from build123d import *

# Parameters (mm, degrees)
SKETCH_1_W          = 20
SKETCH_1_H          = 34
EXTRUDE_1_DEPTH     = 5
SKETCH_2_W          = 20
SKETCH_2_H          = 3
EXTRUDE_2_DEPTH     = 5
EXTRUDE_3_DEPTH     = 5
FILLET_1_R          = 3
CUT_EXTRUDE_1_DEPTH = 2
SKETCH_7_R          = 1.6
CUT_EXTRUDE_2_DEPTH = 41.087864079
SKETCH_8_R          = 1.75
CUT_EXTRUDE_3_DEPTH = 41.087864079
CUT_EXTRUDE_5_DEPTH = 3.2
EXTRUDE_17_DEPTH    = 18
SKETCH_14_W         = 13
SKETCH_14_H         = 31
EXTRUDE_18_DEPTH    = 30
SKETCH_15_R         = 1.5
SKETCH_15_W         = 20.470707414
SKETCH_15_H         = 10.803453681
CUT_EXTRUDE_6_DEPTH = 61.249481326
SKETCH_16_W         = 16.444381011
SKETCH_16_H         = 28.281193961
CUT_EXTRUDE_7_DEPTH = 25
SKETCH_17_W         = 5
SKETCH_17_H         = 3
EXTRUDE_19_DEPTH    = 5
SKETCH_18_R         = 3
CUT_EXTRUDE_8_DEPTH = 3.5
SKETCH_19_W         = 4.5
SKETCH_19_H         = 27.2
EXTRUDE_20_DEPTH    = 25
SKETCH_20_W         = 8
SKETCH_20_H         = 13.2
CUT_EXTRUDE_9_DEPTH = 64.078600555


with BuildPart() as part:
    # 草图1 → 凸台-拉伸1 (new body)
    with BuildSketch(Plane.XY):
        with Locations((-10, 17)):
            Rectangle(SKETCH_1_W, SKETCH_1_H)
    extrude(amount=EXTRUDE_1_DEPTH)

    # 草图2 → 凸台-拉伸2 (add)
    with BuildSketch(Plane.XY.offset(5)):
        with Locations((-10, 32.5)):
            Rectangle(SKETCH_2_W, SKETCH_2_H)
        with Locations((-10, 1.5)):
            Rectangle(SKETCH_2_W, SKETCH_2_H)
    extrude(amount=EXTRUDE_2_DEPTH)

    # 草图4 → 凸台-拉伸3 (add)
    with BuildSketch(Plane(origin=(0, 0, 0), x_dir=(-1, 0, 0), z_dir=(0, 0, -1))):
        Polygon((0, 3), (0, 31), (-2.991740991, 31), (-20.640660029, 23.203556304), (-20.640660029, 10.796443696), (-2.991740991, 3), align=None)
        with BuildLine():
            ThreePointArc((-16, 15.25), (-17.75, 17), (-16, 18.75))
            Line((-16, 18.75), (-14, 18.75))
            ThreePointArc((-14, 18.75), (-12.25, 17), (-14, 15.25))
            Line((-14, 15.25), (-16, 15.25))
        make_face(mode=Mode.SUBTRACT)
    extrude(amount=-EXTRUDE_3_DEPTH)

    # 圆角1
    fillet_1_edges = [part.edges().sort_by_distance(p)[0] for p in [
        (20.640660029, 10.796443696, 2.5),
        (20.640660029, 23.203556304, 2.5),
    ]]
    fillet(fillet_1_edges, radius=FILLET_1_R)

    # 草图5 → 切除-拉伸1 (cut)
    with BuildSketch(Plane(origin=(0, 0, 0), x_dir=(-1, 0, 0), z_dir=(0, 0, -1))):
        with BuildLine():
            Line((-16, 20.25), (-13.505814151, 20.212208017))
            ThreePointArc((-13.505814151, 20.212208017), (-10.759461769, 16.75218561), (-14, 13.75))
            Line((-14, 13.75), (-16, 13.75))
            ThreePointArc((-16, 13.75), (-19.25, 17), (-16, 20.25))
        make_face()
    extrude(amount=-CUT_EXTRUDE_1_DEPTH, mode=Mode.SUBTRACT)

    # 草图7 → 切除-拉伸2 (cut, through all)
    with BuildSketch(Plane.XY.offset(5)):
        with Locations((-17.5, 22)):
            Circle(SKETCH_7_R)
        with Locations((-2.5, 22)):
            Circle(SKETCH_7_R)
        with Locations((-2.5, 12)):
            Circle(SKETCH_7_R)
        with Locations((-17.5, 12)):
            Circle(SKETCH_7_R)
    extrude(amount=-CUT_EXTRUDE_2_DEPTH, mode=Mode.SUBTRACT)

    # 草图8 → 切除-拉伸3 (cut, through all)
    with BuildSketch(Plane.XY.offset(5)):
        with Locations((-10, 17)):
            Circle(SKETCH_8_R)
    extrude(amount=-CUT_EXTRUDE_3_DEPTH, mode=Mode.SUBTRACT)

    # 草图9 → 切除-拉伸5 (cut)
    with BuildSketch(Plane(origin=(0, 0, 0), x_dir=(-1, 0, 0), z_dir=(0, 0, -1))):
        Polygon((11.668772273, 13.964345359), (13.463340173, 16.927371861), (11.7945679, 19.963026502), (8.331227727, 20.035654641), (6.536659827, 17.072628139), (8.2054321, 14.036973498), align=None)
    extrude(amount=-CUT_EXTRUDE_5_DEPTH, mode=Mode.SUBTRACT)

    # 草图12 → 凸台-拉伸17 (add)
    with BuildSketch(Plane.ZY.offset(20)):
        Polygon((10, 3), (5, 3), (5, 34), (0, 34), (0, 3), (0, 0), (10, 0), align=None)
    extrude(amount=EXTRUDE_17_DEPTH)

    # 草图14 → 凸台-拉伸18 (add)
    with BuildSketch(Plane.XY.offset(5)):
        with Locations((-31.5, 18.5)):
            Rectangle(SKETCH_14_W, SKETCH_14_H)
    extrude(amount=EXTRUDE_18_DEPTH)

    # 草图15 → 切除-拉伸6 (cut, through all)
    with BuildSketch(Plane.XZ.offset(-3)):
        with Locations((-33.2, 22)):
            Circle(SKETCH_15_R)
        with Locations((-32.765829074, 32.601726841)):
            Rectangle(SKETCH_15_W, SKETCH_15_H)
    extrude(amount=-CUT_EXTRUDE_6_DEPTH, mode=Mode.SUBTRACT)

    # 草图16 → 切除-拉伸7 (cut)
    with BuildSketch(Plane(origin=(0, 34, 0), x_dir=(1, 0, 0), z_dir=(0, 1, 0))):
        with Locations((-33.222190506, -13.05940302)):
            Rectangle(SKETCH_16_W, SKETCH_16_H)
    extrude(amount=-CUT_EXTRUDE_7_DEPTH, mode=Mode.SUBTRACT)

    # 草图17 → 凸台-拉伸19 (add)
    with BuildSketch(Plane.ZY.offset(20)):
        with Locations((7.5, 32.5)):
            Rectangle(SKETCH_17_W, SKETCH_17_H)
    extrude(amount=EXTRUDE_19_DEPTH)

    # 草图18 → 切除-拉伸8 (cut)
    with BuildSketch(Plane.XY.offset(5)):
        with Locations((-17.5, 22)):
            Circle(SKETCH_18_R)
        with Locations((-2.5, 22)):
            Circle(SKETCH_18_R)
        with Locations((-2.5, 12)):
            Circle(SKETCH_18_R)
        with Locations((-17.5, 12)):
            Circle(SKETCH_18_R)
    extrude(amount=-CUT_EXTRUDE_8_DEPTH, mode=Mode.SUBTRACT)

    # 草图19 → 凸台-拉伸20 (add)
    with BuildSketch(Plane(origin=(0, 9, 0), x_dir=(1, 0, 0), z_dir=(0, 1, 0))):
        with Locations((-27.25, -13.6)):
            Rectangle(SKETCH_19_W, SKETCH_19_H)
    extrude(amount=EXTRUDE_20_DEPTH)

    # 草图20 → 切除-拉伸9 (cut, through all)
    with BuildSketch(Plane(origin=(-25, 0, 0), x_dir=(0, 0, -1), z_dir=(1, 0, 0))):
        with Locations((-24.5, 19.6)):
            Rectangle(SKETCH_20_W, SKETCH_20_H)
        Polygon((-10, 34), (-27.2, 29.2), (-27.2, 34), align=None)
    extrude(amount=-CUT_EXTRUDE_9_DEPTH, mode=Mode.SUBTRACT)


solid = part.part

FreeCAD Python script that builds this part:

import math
import FreeCAD as App
import Part
import Sketcher

V = App.Vector


def edges_at(feature, points):
    """Names of the edges that pass closest to the given points."""
    edges = feature.Shape.Edges
    near = lambda p: min(range(len(edges)), key=lambda i: edges[i].distToShape(Part.Vertex(*p))[0])
    return sorted({f"Edge{near(p) + 1}" for p in points})


def add_polygon(sketch, points):
    """Adds a closed chain of lines whose ends are joined by coincident constraints."""
    first, n = sketch.GeometryCount, len(points)
    for a, b in zip(points, points[1:] + points[:1]):
        sketch.addGeometry(Part.LineSegment(App.Vector(*a, 0), App.Vector(*b, 0)), False)
    for i in range(n):
        sketch.addConstraint(Sketcher.Constraint("Coincident", first + i, 2, first + (i + 1) % n, 1))

doc = App.newDocument("Part")
params = doc.addObject("Spreadsheet::Sheet", "Params")
for row, (alias, value) in enumerate([
    ("sketch1_width", "20 mm"),
    ("sketch1_height", "34 mm"),
    ("pad1_length", "5 mm"),
    ("sketch2_width", "20 mm"),
    ("sketch2_height", "3 mm"),
    ("pad2_length", "5 mm"),
    ("sketch3_width", "2 mm"),
    ("sketch3_height", "28 mm"),
    ("sketch3_radius", "1.75 mm"),
    ("pad3_length", "5 mm"),
    ("fillet_radius", "3 mm"),
    ("sketch4_width", "2 mm"),
    ("sketch4_radius", "3.25 mm"),
    ("pocket1_length", "2 mm"),
    ("sketch5_diameter", "3.2 mm"),
    ("sketch6_diameter", "3.5 mm"),
    ("pocket4_length", "3.2 mm"),
    ("sketch8_width", "31 mm"),
    ("sketch8_width2", "34 mm"),
    ("sketch8_height", "5 mm"),
    ("pad4_length", "18 mm"),
    ("sketch9_width", "13 mm"),
    ("sketch9_height", "31 mm"),
    ("pad5_length", "30 mm"),
    ("sketch10_diameter", "3 mm"),
    ("pocket6_length", "25 mm"),
    ("sketch12_width", "3 mm"),
    ("sketch12_height", "5 mm"),
    ("pad6_length", "5 mm"),
    ("sketch13_diameter", "6 mm"),
    ("pocket7_length", "3.5 mm"),
    ("sketch14_width", "4.5 mm"),
    ("sketch14_height", "27.2 mm"),
    ("pad7_length", "25 mm"),
    ("sketch15_height", "8 mm"),
    ("sketch15_width", "13.2 mm"),
    ("sketch15_width2", "4.8 mm"),
    ("sketch15_height2", "17.2 mm"),
], start=1):
    params.set(f"A{row}", alias)
    params.set(f"B{row}", "=" + value)
    params.setAlias(f"B{row}", alias)

body = doc.addObject("PartDesign::Body", "Body")

# Sketch on XY plane
sketch1 = body.newObject("Sketcher::SketchObject", "Sketch")
sketch1.AttachmentSupport = (doc.getObject("XY_Plane"), [""])
sketch1.MapMode = "FlatFace"
add_polygon(sketch1, [(-20, 34), (-20, 0), (0, 0), (0, 34)])  # lines 0-3
sketch1.addConstraint(Sketcher.Constraint("Vertical", 0))
sketch1.addConstraint(Sketcher.Constraint("Horizontal", 1))
sketch1.addConstraint(Sketcher.Constraint("Vertical", 2))
sketch1.addConstraint(Sketcher.Constraint("Horizontal", 3))
sketch1.addConstraint(Sketcher.Constraint("Coincident", 1, 2, -1, 1))
sketch1.addConstraint(Sketcher.Constraint("DistanceX", 1, 1, 1, 2, 20.0))
sketch1.addConstraint(Sketcher.Constraint("DistanceY", 0, 2, 0, 1, 34.0))
sketch1.setExpression("Constraints[9]", "Params.sketch1_width")
sketch1.setExpression("Constraints[10]", "Params.sketch1_height")
pad1 = body.newObject("PartDesign::Pad", "Pad")
pad1.Profile = sketch1
pad1.setExpression("Length", "Params.pad1_length")

# Sketch on XY plane
sketch2 = body.newObject("Sketcher::SketchObject", "Sketch001")
sketch2.AttachmentSupport = (doc.getObject("XY_Plane"), [""])
sketch2.MapMode = "FlatFace"
sketch2.AttachmentOffset = App.Placement(V(0, 0, 5), App.Rotation())
add_polygon(sketch2, [(-20, 34), (-20, 31), (0, 31), (0, 34)])  # lines 0-3
add_polygon(sketch2, [(-20, 3), (-20, 0), (0, 0), (0, 3)])  # lines 4-7
sketch2.addConstraint(Sketcher.Constraint("Vertical", 0))
sketch2.addConstraint(Sketcher.Constraint("Horizontal", 1))
sketch2.addConstraint(Sketcher.Constraint("Vertical", 2))
sketch2.addConstraint(Sketcher.Constraint("Horizontal", 3))
sketch2.addConstraint(Sketcher.Constraint("Vertical", 4))
sketch2.addConstraint(Sketcher.Constraint("Horizontal", 5))
sketch2.addConstraint(Sketcher.Constraint("Vertical", 6))
sketch2.addConstraint(Sketcher.Constraint("Horizontal", 7))
sketch2.addConstraint(Sketcher.Constraint("Coincident", 5, 2, -1, 1))
sketch2.addConstraint(Sketcher.Constraint("PointOnObject", 1, 2, -2))
sketch2.addConstraint(Sketcher.Constraint("Vertical", 3, 2, 4, 2))
sketch2.addConstraint(Sketcher.Constraint("Equal", 2, 4))
sketch2.addConstraint(Sketcher.Constraint("DistanceX", 1, 1, 1, 2, 20.0))
sketch2.addConstraint(Sketcher.Constraint("DistanceY", 0, 2, 0, 1, 3.0))
sketch2.addConstraint(Sketcher.Constraint("DistanceY", -1, 1, 0, 2, 31.0))
sketch2.setExpression("Constraints[20]", "Params.sketch2_width")
sketch2.setExpression("Constraints[21]", "Params.sketch2_height")
pad2 = body.newObject("PartDesign::Pad", "Pad001")
pad2.Profile = sketch2
pad2.setExpression("Length", "Params.pad2_length")

# Sketch on XY plane
sketch3 = body.newObject("Sketcher::SketchObject", "Sketch002")
sketch3.AttachmentSupport = (doc.getObject("XY_Plane"), [""])
sketch3.MapMode = "FlatFace"
add_polygon(sketch3, [(0, 3), (0, 31), (3, 31), (20.6, 23.2), (20.6, 10.8), (3, 3)])  # lines 0-5
sketch3.addGeometry(Part.LineSegment(V(14, 15.2, 0), V(16, 15.2, 0)), False)  # 6
sketch3.addGeometry(Part.ArcOfCircle(Part.Circle(V(16, 17, 0), V(0, 0, 1), 1.8), math.radians(-90), math.radians(90)), False)  # 7
sketch3.addGeometry(Part.LineSegment(V(16, 18.8, 0), V(14, 18.8, 0)), False)  # 8
sketch3.addGeometry(Part.ArcOfCircle(Part.Circle(V(14, 17, 0), V(0, 0, 1), 1.8), math.radians(90), math.radians(270)), False)  # 9
sketch3.addConstraint(Sketcher.Constraint("Tangent", 6, 2, 7, 1))
sketch3.addConstraint(Sketcher.Constraint("Tangent", 7, 2, 8, 1))
sketch3.addConstraint(Sketcher.Constraint("Tangent", 8, 2, 9, 1))
sketch3.addConstraint(Sketcher.Constraint("Tangent", 9, 2, 6, 1))
sketch3.addConstraint(Sketcher.Constraint("Vertical", 0))
sketch3.addConstraint(Sketcher.Constraint("Horizontal", 1))
sketch3.addConstraint(Sketcher.Constraint("Vertical", 3))
sketch3.addConstraint(Sketcher.Constraint("Horizontal", 5))
sketch3.addConstraint(Sketcher.Constraint("Horizontal", 6))
sketch3.addConstraint(Sketcher.Constraint("Horizontal", 8))
sketch3.addConstraint(Sketcher.Constraint("PointOnObject", 0, 2, -2))
sketch3.addConstraint(Sketcher.Constraint("Vertical", 1, 2, 4, 2))
sketch3.addConstraint(Sketcher.Constraint("Equal", 2, 4))
sketch3.addConstraint(Sketcher.Constraint("DistanceX", 6, 1, 6, 2, 2.0))
sketch3.addConstraint(Sketcher.Constraint("DistanceY", 0, 1, 0, 2, 28.0))
sketch3.addConstraint(Sketcher.Constraint("Radius", 7, 1.75))
sketch3.addConstraint(Sketcher.Constraint("DistanceX", -1, 1, 7, 3, 16.0))
sketch3.addConstraint(Sketcher.Constraint("DistanceY", -1, 1, 7, 3, 17.0))
sketch3.addConstraint(Sketcher.Constraint("DistanceY", -1, 1, 0, 2, 31.0))
sketch3.addConstraint(Sketcher.Constraint("DistanceX", 1, 1, 1, 2, 2.991741))
sketch3.addConstraint(Sketcher.Constraint("Distance", 2, 19.294271))
sketch3.addConstraint(Sketcher.Constraint("DistanceY", 3, 2, 3, 1, 12.407113))
sketch3.setExpression("Constraints[19]", "Params.sketch3_width")
sketch3.setExpression("Constraints[20]", "Params.sketch3_height")
sketch3.setExpression("Constraints[21]", "Params.sketch3_radius")
pad3 = body.newObject("PartDesign::Pad", "Pad002")
pad3.Profile = sketch3
pad3.setExpression("Length", "Params.pad3_length")
doc.recompute()

fillet = body.newObject("PartDesign::Fillet", "Fillet")
fillet.Base = (pad3, edges_at(pad3, [(20.641, 10.796, 2.5), (20.641, 23.204, 2.5)]))
fillet.setExpression("Radius", "Params.fillet_radius")

# Sketch on XY plane
sketch4 = body.newObject("Sketcher::SketchObject", "Sketch003")
sketch4.AttachmentSupport = (doc.getObject("XY_Plane"), [""])
sketch4.MapMode = "FlatFace"
sketch4.addGeometry(Part.LineSegment(V(13.5, 20.2, 0), V(16, 20.2, 0)), False)
sketch4.addGeometry(Part.ArcOfCircle(Part.Circle(V(16, 17, 0), V(0, 0, 1), 3.2), math.radians(-90), math.radians(90)), False)
sketch4.addGeometry(Part.LineSegment(V(16, 13.8, 0), V(14, 13.8, 0)), False)
sketch4.addGeometry(Part.ArcOfCircle(Part.Circle(V(14, 17, 0), V(0, 0, 1), 3.2), math.radians(99), math.radians(270)), False)
sketch4.addConstraint(Sketcher.Constraint("Coincident", 0, 2, 1, 2))
sketch4.addConstraint(Sketcher.Constraint("Tangent", 1, 1, 2, 1))
sketch4.addConstraint(Sketcher.Constraint("Tangent", 2, 2, 3, 2))
sketch4.addConstraint(Sketcher.Constraint("Coincident", 3, 1, 0, 1))
sketch4.addConstraint(Sketcher.Constraint("Horizontal", 2))
sketch4.addConstraint(Sketcher.Constraint("Equal", 1, 3))
sketch4.addConstraint(Sketcher.Constraint("Vertical", 1, 3, 0, 2))
sketch4.addConstraint(Sketcher.Constraint("DistanceX", 2, 2, 2, 1, 2.0))
sketch4.addConstraint(Sketcher.Constraint("Radius", 1, 3.25))
sketch4.addConstraint(Sketcher.Constraint("DistanceX", -1, 1, 1, 3, 16.0))
sketch4.addConstraint(Sketcher.Constraint("DistanceY", -1, 1, 1, 3, 17.0))
sketch4.addConstraint(Sketcher.Constraint("DistanceY", -1, 1, 3, 1, 20.212208))
sketch4.setExpression("Constraints[7]", "Params.sketch4_width")
sketch4.setExpression("Constraints[8]", "Params.sketch4_radius")
pocket1 = body.newObject("PartDesign::Pocket", "Pocket")
pocket1.Profile = sketch4
pocket1.setExpression("Length", "Params.pocket1_length")
pocket1.Reversed = True

# Sketch on XY plane
sketch5 = body.newObject("Sketcher::SketchObject", "Sketch004")
sketch5.AttachmentSupport = (doc.getObject("XY_Plane"), [""])
sketch5.MapMode = "FlatFace"
sketch5.AttachmentOffset = App.Placement(V(0, 0, 5), App.Rotation())
sketch5.addGeometry(Part.Circle(V(-17.5, 22, 0), V(0, 0, 1), 1.6), False)
sketch5.addGeometry(Part.Circle(V(-2.5, 22, 0), V(0, 0, 1), 1.6), False)
sketch5.addGeometry(Part.Circle(V(-2.5, 12, 0), V(0, 0, 1), 1.6), False)
sketch5.addGeometry(Part.Circle(V(-17.5, 12, 0), V(0, 0, 1), 1.6), False)
sketch5.addConstraint(Sketcher.Constraint("Equal", 0, 1))
sketch5.addConstraint(Sketcher.Constraint("Equal", 1, 2))
sketch5.addConstraint(Sketcher.Constraint("Equal", 2, 3))
sketch5.addConstraint(Sketcher.Constraint("Horizontal", 0, 3, 1, 3))
sketch5.addConstraint(Sketcher.Constraint("Horizontal", 2, 3, 3, 3))
sketch5.addConstraint(Sketcher.Constraint("Vertical", 1, 3, 2, 3))
sketch5.addConstraint(Sketcher.Constraint("Vertical", 0, 3, 3, 3))
sketch5.addConstraint(Sketcher.Constraint("Diameter", 0, 3.2))
sketch5.addConstraint(Sketcher.Constraint("DistanceY", -1, 1, 0, 3, 22.0))
sketch5.addConstraint(Sketcher.Constraint("DistanceY", -1, 1, 2, 3, 12.0))
sketch5.addConstraint(Sketcher.Constraint("DistanceX", 0, 3, 1, 3, 15.0))
sketch5.addConstraint(Sketcher.Constraint("DistanceX", 0, 3, -1, 1, 17.5))
sketch5.setExpression("Constraints[7]", "Params.sketch5_diameter")
pocket2 = body.newObject("PartDesign::Pocket", "Pocket001")
pocket2.Profile = sketch5
pocket2.Type = "ThroughAll"

# Sketch on XY plane
sketch6 = body.newObject("Sketcher::SketchObject", "Sketch005")
sketch6.AttachmentSupport = (doc.getObject("XY_Plane"), [""])
sketch6.MapMode = "FlatFace"
sketch6.AttachmentOffset = App.Placement(V(0, 0, 5), App.Rotation())
sketch6.addGeometry(Part.Circle(V(-10, 17, 0), V(0, 0, 1), 1.8), False)
sketch6.addConstraint(Sketcher.Constraint("Diameter", 0, 3.5))
sketch6.addConstraint(Sketcher.Constraint("DistanceX", 0, 3, -1, 1, 10.0))
sketch6.addConstraint(Sketcher.Constraint("DistanceY", -1, 1, 0, 3, 17.0))
sketch6.setExpression("Constraints[0]", "Params.sketch6_diameter")
pocket3 = body.newObject("PartDesign::Pocket", "Pocket002")
pocket3.Profile = sketch6
pocket3.Type = "ThroughAll"

# Sketch on XY plane
sketch7 = body.newObject("Sketcher::SketchObject", "Sketch006")
sketch7.AttachmentSupport = (doc.getObject("XY_Plane"), [""])
sketch7.MapMode = "FlatFace"
add_polygon(sketch7, [(-11.7, 14), (-13.5, 16.9), (-11.8, 20), (-8.3, 20), (-6.5, 17.1), (-8.2, 14)])  # lines 0-5
sketch7.addConstraint(Sketcher.Constraint("Parallel", 0, 3))
sketch7.addConstraint(Sketcher.Constraint("Parallel", 1, 4))
sketch7.addConstraint(Sketcher.Constraint("Parallel", 2, 5))
sketch7.addConstraint(Sketcher.Constraint("Equal", 0, 1))
sketch7.addConstraint(Sketcher.Constraint("Equal", 1, 2))
sketch7.addConstraint(Sketcher.Constraint("Equal", 2, 3))
sketch7.addConstraint(Sketcher.Constraint("Distance", 0, 3.464102))
sketch7.addConstraint(Sketcher.Constraint("DistanceY", 3, 2, 1, 2, 2.890398))
sketch7.addConstraint(Sketcher.Constraint("DistanceX", 0, 2, -1, 1, 13.46334))
sketch7.addConstraint(Sketcher.Constraint("DistanceY", -1, 1, 0, 2, 16.927372))
sketch7.addConstraint(Sketcher.Constraint("DistanceX", 3, 2, -1, 1, 6.53666))
sketch7.addConstraint(Sketcher.Constraint("DistanceY", -1, 1, 3, 2, 17.072628))
pocket4 = body.newObject("PartDesign::Pocket", "Pocket003")
pocket4.Profile = sketch7
pocket4.setExpression("Length", "Params.pocket4_length")
pocket4.Reversed = True

# Sketch on YZ plane
sketch8 = body.newObject("Sketcher::SketchObject", "Sketch007")
sketch8.AttachmentSupport = (doc.getObject("YZ_Plane"), [""])
sketch8.MapMode = "FlatFace"
sketch8.AttachmentOffset = App.Placement(V(0, 0, -20), App.Rotation())
add_polygon(sketch8, [(3, 10), (3, 5), (34, 5), (34, 0), (0, 0), (0, 10)])  # lines 0-5
sketch8.addConstraint(Sketcher.Constraint("Vertical", 0))
sketch8.addConstraint(Sketcher.Constraint("Horizontal", 1))
sketch8.addConstraint(Sketcher.Constraint("Vertical", 2))
sketch8.addConstraint(Sketcher.Constraint("Horizontal", 3))
sketch8.addConstraint(Sketcher.Constraint("Vertical", 4))
sketch8.addConstraint(Sketcher.Constraint("Horizontal", 5))
sketch8.addConstraint(Sketcher.Constraint("Coincident", 3, 2, -1, 1))
sketch8.addConstraint(Sketcher.Constraint("Equal", 0, 2))
sketch8.addConstraint(Sketcher.Constraint("DistanceX", 1, 1, 1, 2, 31.0))
sketch8.addConstraint(Sketcher.Constraint("DistanceX", 3, 2, 3, 1, 34.0))
sketch8.addConstraint(Sketcher.Constraint("DistanceY", 0, 2, 0, 1, 5.0))
sketch8.setExpression("Constraints[14]", "Params.sketch8_width")
sketch8.setExpression("Constraints[15]", "Params.sketch8_width2")
sketch8.setExpression("Constraints[16]", "Params.sketch8_height")
pad4 = body.newObject("PartDesign::Pad", "Pad003")
pad4.Profile = sketch8
pad4.setExpression("Length", "Params.pad4_length")
pad4.Reversed = True

# Sketch on XY plane
sketch9 = body.newObject("Sketcher::SketchObject", "Sketch008")
sketch9.AttachmentSupport = (doc.getObject("XY_Plane"), [""])
sketch9.MapMode = "FlatFace"
sketch9.AttachmentOffset = App.Placement(V(0, 0, 5), App.Rotation())
add_polygon(sketch9, [(-38, 34), (-38, 3), (-25, 3), (-25, 34)])  # lines 0-3
sketch9.addConstraint(Sketcher.Constraint("Vertical", 0))
sketch9.addConstraint(Sketcher.Constraint("Horizontal", 1))
sketch9.addConstraint(Sketcher.Constraint("Vertical", 2))
sketch9.addConstraint(Sketcher.Constraint("Horizontal", 3))
sketch9.addConstraint(Sketcher.Constraint("DistanceX", 1, 1, 1, 2, 13.0))
sketch9.addConstraint(Sketcher.Constraint("DistanceY", 0, 2, 0, 1, 31.0))
sketch9.addConstraint(Sketcher.Constraint("DistanceX", 0, 2, -1, 1, 38.0))
sketch9.addConstraint(Sketcher.Constraint("DistanceY", -1, 1, 0, 2, 3.0))
sketch9.setExpression("Constraints[8]", "Params.sketch9_width")
sketch9.setExpression("Constraints[9]", "Params.sketch9_height")
pad5 = body.newObject("PartDesign::Pad", "Pad004")
pad5.Profile = sketch9
pad5.setExpression("Length", "Params.pad5_length")

# Sketch on XZ plane
sketch10 = body.newObject("Sketcher::SketchObject", "Sketch009")
sketch10.AttachmentSupport = (doc.getObject("XZ_Plane"), [""])
sketch10.MapMode = "FlatFace"
sketch10.AttachmentOffset = App.Placement(V(0, 0, -3), App.Rotation())
sketch10.addGeometry(Part.Circle(V(-33.2, 22, 0), V(0, 0, 1), 1.5), False)  # 0
add_polygon(sketch10, [(-43, 38), (-43, 27.2), (-22.5, 27.2), (-22.5, 38)])  # lines 1-4
sketch10.addConstraint(Sketcher.Constraint("Vertical", 1))
sketch10.addConstraint(Sketcher.Constraint("Horizontal", 2))
sketch10.addConstraint(Sketcher.Constraint("Vertical", 3))
sketch10.addConstraint(Sketcher.Constraint("Horizontal", 4))
sketch10.addConstraint(Sketcher.Constraint("Diameter", 0, 3.0))
sketch10.addConstraint(Sketcher.Constraint("DistanceY", -1, 1, 0, 3, 22.0))
sketch10.addConstraint(Sketcher.Constraint("DistanceX", 0, 3, -1, 1, 33.2))
sketch10.addConstraint(Sketcher.Constraint("DistanceY", -1, 1, 1, 2, 27.2))
sketch10.addConstraint(Sketcher.Constraint("DistanceX", 2, 1, 2, 2, 20.470707))
sketch10.addConstraint(Sketcher.Constraint("DistanceY", 1, 2, 1, 1, 10.803454))
sketch10.addConstraint(Sketcher.Constraint("DistanceX", 1, 2, -1, 1, 43.001183))
sketch10.setExpression("Constraints[8]", "Params.sketch10_diameter")
pocket5 = body.newObject("PartDesign::Pocket", "Pocket004")
pocket5.Profile = sketch10
pocket5.Type = "ThroughAll"

# Sketch on XZ plane
sketch11 = body.newObject("Sketcher::SketchObject", "Sketch010")
sketch11.AttachmentSupport = (doc.getObject("XZ_Plane"), [""])
sketch11.MapMode = "FlatFace"
sketch11.AttachmentOffset = App.Placement(V(0, 0, -34), App.Rotation())
add_polygon(sketch11, [(-41, -1), (-41, 27), (-25, 27), (-25, -1)])  # lines 0-3
sketch11.addConstraint(Sketcher.Constraint("Vertical", 0))
sketch11.addConstraint(Sketcher.Constraint("Horizontal", 1))
sketch11.addConstraint(Sketcher.Constraint("Vertical", 2))
sketch11.addConstraint(Sketcher.Constraint("Horizontal", 3))
sketch11.addConstraint(Sketcher.Constraint("DistanceX", 1, 2, -1, 1, 25.0))
sketch11.addConstraint(Sketcher.Constraint("DistanceY", -1, 1, 0, 2, 27.2))
sketch11.addConstraint(Sketcher.Constraint("DistanceX", 1, 1, 1, 2, 16.444381))
sketch11.addConstraint(Sketcher.Constraint("DistanceY", 0, 1, 0, 2, 28.281194))
pocket6 = body.newObject("PartDesign::Pocket", "Pocket005")
pocket6.Profile = sketch11
pocket6.setExpression("Length", "Params.pocket6_length")
pocket6.Reversed = True

# Sketch on YZ plane
sketch12 = body.newObject("Sketcher::SketchObject", "Sketch011")
sketch12.AttachmentSupport = (doc.getObject("YZ_Plane"), [""])
sketch12.MapMode = "FlatFace"
sketch12.AttachmentOffset = App.Placement(V(0, 0, -20), App.Rotation())
add_polygon(sketch12, [(34, 5), (31, 5), (31, 10), (34, 10)])  # lines 0-3
sketch12.addConstraint(Sketcher.Constraint("Horizontal", 0))
sketch12.addConstraint(Sketcher.Constraint("Vertical", 1))
sketch12.addConstraint(Sketcher.Constraint("Horizontal", 2))
sketch12.addConstraint(Sketcher.Constraint("Vertical", 3))
sketch12.addConstraint(Sketcher.Constraint("DistanceX", 0, 2, 0, 1, 3.0))
sketch12.addConstraint(Sketcher.Constraint("DistanceY", 1, 1, 1, 2, 5.0))
sketch12.addConstraint(Sketcher.Constraint("DistanceX", -1, 1, 0, 2, 31.0))
sketch12.addConstraint(Sketcher.Constraint("DistanceY", -1, 1, 0, 2, 5.0))
sketch12.setExpression("Constraints[8]", "Params.sketch12_width")
sketch12.setExpression("Constraints[9]", "Params.sketch12_height")
pad6 = body.newObject("PartDesign::Pad", "Pad005")
pad6.Profile = sketch12
pad6.setExpression("Length", "Params.pad6_length")
pad6.Reversed = True

# Sketch on XY plane
sketch13 = body.newObject("Sketcher::SketchObject", "Sketch012")
sketch13.AttachmentSupport = (doc.getObject("XY_Plane"), [""])
sketch13.MapMode = "FlatFace"
sketch13.AttachmentOffset = App.Placement(V(0, 0, 5), App.Rotation())
sketch13.addGeometry(Part.Circle(V(-17.5, 22, 0), V(0, 0, 1), 3), False)
sketch13.addGeometry(Part.Circle(V(-2.5, 22, 0), V(0, 0, 1), 3), False)
sketch13.addGeometry(Part.Circle(V(-2.5, 12, 0), V(0, 0, 1), 3), False)
sketch13.addGeometry(Part.Circle(V(-17.5, 12, 0), V(0, 0, 1), 3), False)
sketch13.addConstraint(Sketcher.Constraint("Equal", 0, 1))
sketch13.addConstraint(Sketcher.Constraint("Equal", 1, 2))
sketch13.addConstraint(Sketcher.Constraint("Equal", 2, 3))
sketch13.addConstraint(Sketcher.Constraint("Horizontal", 0, 3, 1, 3))
sketch13.addConstraint(Sketcher.Constraint("Horizontal", 2, 3, 3, 3))
sketch13.addConstraint(Sketcher.Constraint("Vertical", 1, 3, 2, 3))
sketch13.addConstraint(Sketcher.Constraint("Vertical", 0, 3, 3, 3))
sketch13.addConstraint(Sketcher.Constraint("Diameter", 0, 6.0))
sketch13.addConstraint(Sketcher.Constraint("DistanceY", -1, 1, 0, 3, 22.0))
sketch13.addConstraint(Sketcher.Constraint("DistanceY", -1, 1, 2, 3, 12.0))
sketch13.addConstraint(Sketcher.Constraint("DistanceX", 0, 3, 1, 3, 15.0))
sketch13.addConstraint(Sketcher.Constraint("DistanceX", 0, 3, -1, 1, 17.5))
sketch13.setExpression("Constraints[7]", "Params.sketch13_diameter")
pocket7 = body.newObject("PartDesign::Pocket", "Pocket006")
pocket7.Profile = sketch13
pocket7.setExpression("Length", "Params.pocket7_length")

# Sketch on XZ plane
sketch14 = body.newObject("Sketcher::SketchObject", "Sketch013")
sketch14.AttachmentSupport = (doc.getObject("XZ_Plane"), [""])
sketch14.MapMode = "FlatFace"
sketch14.AttachmentOffset = App.Placement(V(0, 0, -9), App.Rotation())
add_polygon(sketch14, [(-29.5, 0), (-29.5, 27.2), (-25, 27.2), (-25, 0)])  # lines 0-3
sketch14.addConstraint(Sketcher.Constraint("Vertical", 0))
sketch14.addConstraint(Sketcher.Constraint("Horizontal", 1))
sketch14.addConstraint(Sketcher.Constraint("Vertical", 2))
sketch14.addConstraint(Sketcher.Constraint("Horizontal", 3))
sketch14.addConstraint(Sketcher.Constraint("PointOnObject", 2, 2, -1))
sketch14.addConstraint(Sketcher.Constraint("DistanceX", 1, 1, 1, 2, 4.5))
sketch14.addConstraint(Sketcher.Constraint("DistanceY", 0, 1, 0, 2, 27.2))
sketch14.addConstraint(Sketcher.Constraint("DistanceX", 1, 2, -1, 1, 25.0))
sketch14.setExpression("Constraints[9]", "Params.sketch14_width")
sketch14.setExpression("Constraints[10]", "Params.sketch14_height")
pad7 = body.newObject("PartDesign::Pad", "Pad006")
pad7.Profile = sketch14
pad7.setExpression("Length", "Params.pad7_length")
pad7.Reversed = True

# Sketch on YZ plane
sketch15 = body.newObject("Sketcher::SketchObject", "Sketch014")
sketch15.AttachmentSupport = (doc.getObject("YZ_Plane"), [""])
sketch15.MapMode = "FlatFace"
sketch15.AttachmentOffset = App.Placement(V(0, 0, -25), App.Rotation())
add_polygon(sketch15, [(26.2, 28.5), (13, 28.5), (13, 20.5), (26.2, 20.5)])  # lines 0-3
add_polygon(sketch15, [(29.2, 27.2), (34, 10), (34, 27.2)])  # lines 4-6
sketch15.addConstraint(Sketcher.Constraint("Horizontal", 0))
sketch15.addConstraint(Sketcher.Constraint("Vertical", 1))
sketch15.addConstraint(Sketcher.Constraint("Horizontal", 2))
sketch15.addConstraint(Sketcher.Constraint("Vertical", 3))
sketch15.addConstraint(Sketcher.Constraint("Vertical", 5))
sketch15.addConstraint(Sketcher.Constraint("Horizontal", 6))
sketch15.addConstraint(Sketcher.Constraint("DistanceY", 1, 2, 1, 1, 8.0))
sketch15.addConstraint(Sketcher.Constraint("DistanceX", 0, 2, 0, 1, 13.2))
sketch15.addConstraint(Sketcher.Constraint("DistanceX", 6, 2, 6, 1, 4.8))
sketch15.addConstraint(Sketcher.Constraint("DistanceY", 5, 1, 5, 2, 17.2))
sketch15.addConstraint(Sketcher.Constraint("DistanceX", -1, 1, 0, 2, 13.0))
sketch15.addConstraint(Sketcher.Constraint("DistanceX", -1, 1, 4, 2, 34.0))
sketch15.addConstraint(Sketcher.Constraint("DistanceY", -1, 1, 4, 2, 10.0))
sketch15.addConstraint(Sketcher.Constraint("DistanceY", -1, 1, 0, 2, 28.5))
sketch15.setExpression("Constraints[13]", "Params.sketch15_height")
sketch15.setExpression("Constraints[14]", "Params.sketch15_width")
sketch15.setExpression("Constraints[15]", "Params.sketch15_width2")
sketch15.setExpression("Constraints[16]", "Params.sketch15_height2")
pocket8 = body.newObject("PartDesign::Pocket", "Pocket007")
pocket8.Profile = sketch15
pocket8.Type = "ThroughAll"

doc.recompute()
